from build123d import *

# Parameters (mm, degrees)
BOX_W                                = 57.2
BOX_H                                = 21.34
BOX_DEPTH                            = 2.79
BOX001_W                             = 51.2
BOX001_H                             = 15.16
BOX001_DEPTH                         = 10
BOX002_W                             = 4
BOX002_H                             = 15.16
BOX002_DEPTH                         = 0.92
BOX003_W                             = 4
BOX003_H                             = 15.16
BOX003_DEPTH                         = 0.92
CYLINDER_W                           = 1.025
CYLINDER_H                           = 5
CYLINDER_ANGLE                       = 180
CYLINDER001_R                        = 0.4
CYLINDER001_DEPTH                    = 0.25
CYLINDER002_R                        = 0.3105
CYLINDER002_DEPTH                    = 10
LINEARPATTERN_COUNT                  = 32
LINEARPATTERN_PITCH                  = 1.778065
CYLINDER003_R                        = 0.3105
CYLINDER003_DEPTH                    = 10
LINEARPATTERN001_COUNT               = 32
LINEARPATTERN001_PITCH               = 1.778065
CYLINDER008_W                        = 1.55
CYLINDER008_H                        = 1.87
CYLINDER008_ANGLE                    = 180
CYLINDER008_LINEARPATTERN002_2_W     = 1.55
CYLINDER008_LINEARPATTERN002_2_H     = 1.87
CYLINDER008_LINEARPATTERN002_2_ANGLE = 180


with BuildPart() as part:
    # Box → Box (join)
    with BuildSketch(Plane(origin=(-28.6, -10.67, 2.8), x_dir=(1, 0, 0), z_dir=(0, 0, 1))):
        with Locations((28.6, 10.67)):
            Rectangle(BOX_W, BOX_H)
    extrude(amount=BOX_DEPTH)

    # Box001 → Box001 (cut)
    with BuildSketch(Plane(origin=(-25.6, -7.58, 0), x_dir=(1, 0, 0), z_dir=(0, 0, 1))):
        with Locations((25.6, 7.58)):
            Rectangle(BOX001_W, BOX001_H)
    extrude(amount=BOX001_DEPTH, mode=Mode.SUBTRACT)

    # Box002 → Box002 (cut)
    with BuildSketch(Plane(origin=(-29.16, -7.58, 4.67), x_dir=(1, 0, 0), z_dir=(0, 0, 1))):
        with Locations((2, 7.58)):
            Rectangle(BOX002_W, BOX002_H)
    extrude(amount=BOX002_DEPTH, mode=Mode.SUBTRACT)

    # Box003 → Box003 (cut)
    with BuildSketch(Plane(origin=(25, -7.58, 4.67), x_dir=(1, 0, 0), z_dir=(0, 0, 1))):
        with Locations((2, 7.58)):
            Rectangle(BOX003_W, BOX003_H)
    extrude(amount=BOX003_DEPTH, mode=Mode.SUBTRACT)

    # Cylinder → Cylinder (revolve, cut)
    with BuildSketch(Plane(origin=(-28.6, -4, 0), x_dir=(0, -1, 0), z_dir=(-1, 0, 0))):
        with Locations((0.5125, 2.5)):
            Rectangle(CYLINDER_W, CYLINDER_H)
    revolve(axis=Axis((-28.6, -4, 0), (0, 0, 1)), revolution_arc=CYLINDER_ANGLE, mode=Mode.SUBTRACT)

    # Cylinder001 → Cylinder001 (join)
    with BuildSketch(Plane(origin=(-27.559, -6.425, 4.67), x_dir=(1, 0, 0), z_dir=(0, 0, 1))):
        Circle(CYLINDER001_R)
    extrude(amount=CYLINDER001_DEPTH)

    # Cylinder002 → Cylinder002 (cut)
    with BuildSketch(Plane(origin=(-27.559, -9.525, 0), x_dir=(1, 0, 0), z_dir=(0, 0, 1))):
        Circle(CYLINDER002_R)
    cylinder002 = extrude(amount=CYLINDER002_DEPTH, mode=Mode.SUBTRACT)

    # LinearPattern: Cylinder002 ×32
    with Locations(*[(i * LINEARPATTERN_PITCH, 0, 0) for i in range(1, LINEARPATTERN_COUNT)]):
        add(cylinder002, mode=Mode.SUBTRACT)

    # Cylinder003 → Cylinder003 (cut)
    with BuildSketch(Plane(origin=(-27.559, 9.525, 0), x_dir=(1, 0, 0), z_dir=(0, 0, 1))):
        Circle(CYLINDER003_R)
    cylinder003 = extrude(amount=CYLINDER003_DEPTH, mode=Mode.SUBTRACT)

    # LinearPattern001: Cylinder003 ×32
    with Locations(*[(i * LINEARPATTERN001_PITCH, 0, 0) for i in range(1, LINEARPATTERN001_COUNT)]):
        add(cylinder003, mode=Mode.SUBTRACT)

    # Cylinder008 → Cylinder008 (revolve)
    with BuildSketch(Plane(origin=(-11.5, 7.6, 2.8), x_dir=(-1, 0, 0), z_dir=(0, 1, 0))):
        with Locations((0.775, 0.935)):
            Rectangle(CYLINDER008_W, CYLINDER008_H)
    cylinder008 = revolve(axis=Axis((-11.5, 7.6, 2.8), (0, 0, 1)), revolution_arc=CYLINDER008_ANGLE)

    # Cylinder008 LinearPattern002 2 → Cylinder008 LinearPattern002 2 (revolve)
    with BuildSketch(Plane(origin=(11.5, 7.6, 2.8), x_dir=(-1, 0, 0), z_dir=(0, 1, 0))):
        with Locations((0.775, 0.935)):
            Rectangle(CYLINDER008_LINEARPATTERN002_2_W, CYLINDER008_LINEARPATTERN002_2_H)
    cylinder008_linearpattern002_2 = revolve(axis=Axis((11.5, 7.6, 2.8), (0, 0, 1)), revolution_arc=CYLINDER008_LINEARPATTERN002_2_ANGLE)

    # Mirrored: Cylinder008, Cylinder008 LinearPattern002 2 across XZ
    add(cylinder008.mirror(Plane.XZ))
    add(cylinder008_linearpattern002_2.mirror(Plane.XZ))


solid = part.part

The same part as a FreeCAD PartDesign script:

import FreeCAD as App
import Part
import Sketcher
Q = App.Units.Quantity

doc = App.newDocument("Part")
body = doc.addObject("PartDesign::Body", "Body")

sketch1 = doc.addObject("Sketcher::SketchObject", "Sketch")
body.addObject(sketch1)
sketch1.AttachmentSupport = (doc.XY_Plane, [""])
sketch1.MapMode = "FlatFace"
sketch1.AttachmentOffset = App.Placement(App.Vector(0, 0, 2.8), App.Rotation())
sketch1.addGeometry([
    Part.LineSegment(App.Vector(-28.6, 10.67, 0), App.Vector(-28.6, -10.67, 0)),
    Part.LineSegment(App.Vector(-28.6, -10.67, 0), App.Vector(28.6, -10.67, 0)),
    Part.LineSegment(App.Vector(28.6, -10.67, 0), App.Vector(28.6, 10.67, 0)),
    Part.LineSegment(App.Vector(28.6, 10.67, 0), App.Vector(-28.6, 10.67, 0)),
], False)
sketch1.addConstraint([
    Sketcher.Constraint("Coincident", 0, 2, 1, 1),
    Sketcher.Constraint("Coincident", 1, 2, 2, 1),
    Sketcher.Constraint("Coincident", 2, 2, 3, 1),
    Sketcher.Constraint("Coincident", 3, 2, 0, 1),
    Sketcher.Constraint("Vertical", 0),
    Sketcher.Constraint("Horizontal", 1),
    Sketcher.Constraint("Vertical", 2),
    Sketcher.Constraint("Horizontal", 3),
    Sketcher.Constraint("Symmetric", 0, 2, 2, 2, -1, 1),
    Sketcher.Constraint("DistanceX", 1, 1, 1, 2, Q("57.2 mm")),
    Sketcher.Constraint("DistanceY", 0, 2, 0, 1, Q("21.34 mm")),
])
pad1 = doc.addObject("PartDesign::Pad", "Pad")
body.addObject(pad1)
pad1.Profile = sketch1
pad1.Length = 2.79

sketch2 = doc.addObject("Sketcher::SketchObject", "Sketch001")
body.addObject(sketch2)
sketch2.AttachmentSupport = (doc.XY_Plane, [""])
sketch2.MapMode = "FlatFace"
sketch2.addGeometry([
    Part.LineSegment(App.Vector(-25.6, 7.58, 0), App.Vector(-25.6, -7.58, 0)),
    Part.LineSegment(App.Vector(-25.6, -7.58, 0), App.Vector(25.6, -7.58, 0)),
    Part.LineSegment(App.Vector(25.6, -7.58, 0), App.Vector(25.6, 7.58, 0)),
    Part.LineSegment(App.Vector(25.6, 7.58, 0), App.Vector(-25.6, 7.58, 0)),
], False)
sketch2.addConstraint([
    Sketcher.Constraint("Coincident", 0, 2, 1, 1),
    Sketcher.Constraint("Coincident", 1, 2, 2, 1),
    Sketcher.Constraint("Coincident", 2, 2, 3, 1),
    Sketcher.Constraint("Coincident", 3, 2, 0, 1),
    Sketcher.Constraint("Vertical", 0),
    Sketcher.Constraint("Horizontal", 1),
    Sketcher.Constraint("Vertical", 2),
    Sketcher.Constraint("Horizontal", 3),
    Sketcher.Constraint("Symmetric", 0, 2, 2, 2, -1, 1),
    Sketcher.Constraint("DistanceX", 1, 1, 1, 2, Q("51.2 mm")),
    Sketcher.Constraint("DistanceY", 0, 2, 0, 1, Q("15.16 mm")),
])
pocket1 = doc.addObject("PartDesign::Pocket", "Pocket")
body.addObject(pocket1)
pocket1.Profile = sketch2
pocket1.Length = 10
pocket1.Reversed = True

sketch3 = doc.addObject("Sketcher::SketchObject", "Sketch002")
body.addObject(sketch3)
sketch3.AttachmentSupport = (doc.XY_Plane, [""])
sketch3.MapMode = "FlatFace"
sketch3.AttachmentOffset = App.Placement(App.Vector(0, 0, 4.67), App.Rotation())
sketch3.addGeometry([
    Part.LineSegment(App.Vector(-29.16, 7.58, 0), App.Vector(-29.16, -7.58, 0)),
    Part.LineSegment(App.Vector(-29.16, -7.58, 0), App.Vector(-25.16, -7.58, 0)),
    Part.LineSegment(App.Vector(-25.16, -7.58, 0), App.Vector(-25.16, 7.58, 0)),
    Part.LineSegment(App.Vector(-25.16, 7.58, 0), App.Vector(-29.16, 7.58, 0)),
], False)
sketch3.addConstraint([
    Sketcher.Constraint("Coincident", 0, 2, 1, 1),
    Sketcher.Constraint("Coincident", 1, 2, 2, 1),
    Sketcher.Constraint("Coincident", 2, 2, 3, 1),
    Sketcher.Constraint("Coincident", 3, 2, 0, 1),
    Sketcher.Constraint("Vertical", 0),
    Sketcher.Constraint("Horizontal", 1),
    Sketcher.Constraint("Vertical", 2),
    Sketcher.Constraint("Horizontal", 3),
    Sketcher.Constraint("DistanceX", 1, 1, 1, 2, Q("4 mm")),
    Sketcher.Constraint("DistanceY", 0, 2, 0, 1, Q("15.16 mm")),
    Sketcher.Constraint("DistanceX", 0, 2, -1, 1, Q("29.16 mm")),
    Sketcher.Constraint("DistanceY", 0, 2, -1, 1, Q("7.58 mm")),
])
pocket2 = doc.addObject("PartDesign::Pocket", "Pocket001")
body.addObject(pocket2)
pocket2.Profile = sketch3
pocket2.Length = 0.92
pocket2.Reversed = True

sketch4 = doc.addObject("Sketcher::SketchObject", "Sketch003")
body.addObject(sketch4)
sketch4.AttachmentSupport = (doc.XY_Plane, [""])
sketch4.MapMode = "FlatFace"
sketch4.AttachmentOffset = App.Placement(App.Vector(0, 0, 4.67), App.Rotation())
sketch4.addGeometry([
    Part.LineSegment(App.Vector(25, 7.58, 0), App.Vector(25, -7.58, 0)),
    Part.LineSegment(App.Vector(25, -7.58, 0), App.Vector(29, -7.58, 0)),
    Part.LineSegment(App.Vector(29, -7.58, 0), App.Vector(29, 7.58, 0)),
    Part.LineSegment(App.Vector(29, 7.58, 0), App.Vector(25, 7.58, 0)),
], False)
sketch4.addConstraint([
    Sketcher.Constraint("Coincident", 0, 2, 1, 1),
    Sketcher.Constraint("Coincident", 1, 2, 2, 1),
    Sketcher.Constraint("Coincident", 2, 2, 3, 1),
    Sketcher.Constraint("Coincident", 3, 2, 0, 1),
    Sketcher.Constraint("Vertical", 0),
    Sketcher.Constraint("Horizontal", 1),
    Sketcher.Constraint("Vertical", 2),
    Sketcher.Constraint("Horizontal", 3),
    Sketcher.Constraint("DistanceX", 1, 1, 1, 2, Q("4 mm")),
    Sketcher.Constraint("DistanceX", -1, 1, 0, 2, Q("25 mm")),
    Sketcher.Constraint("DistanceY", 0, 2, 0, 1, Q("15.16 mm")),
    Sketcher.Constraint("DistanceY", 0, 2, -1, 1, Q("7.58 mm")),
])
pocket3 = doc.addObject("PartDesign::Pocket", "Pocket002")
body.addObject(pocket3)
pocket3.Profile = sketch4
pocket3.Length = 0.92
pocket3.Reversed = True

sketch5 = doc.addObject("Sketcher::SketchObject", "Sketch004")
body.addObject(sketch5)
sketch5.AttachmentSupport = (doc.YZ_Plane, [""])
sketch5.MapMode = "FlatFace"
sketch5.AttachmentOffset = App.Placement(App.Vector(0, 0, -28.6), App.Rotation())
sketch5.addGeometry([
    Part.LineSegment(App.Vector(-4, 5, 0), App.Vector(-4, 0, 0)),
    Part.LineSegment(App.Vector(-4, 0, 0), App.Vector(-5.025, 0, 0)),
    Part.LineSegment(App.Vector(-5.025, 0, 0), App.Vector(-5.025, 5, 0)),
    Part.LineSegment(App.Vector(-5.025, 5, 0), App.Vector(-4, 5, 0)),
], False)
sketch5.addGeometry(Part.LineSegment(App.Vector(-4, 0, 0), App.Vector(-4, 5, 0)), True)
sketch5.addConstraint([
    Sketcher.Constraint("Coincident", 0, 2, 1, 1),
    Sketcher.Constraint("Coincident", 1, 2, 2, 1),
    Sketcher.Constraint("Coincident", 2, 2, 3, 1),
    Sketcher.Constraint("Coincident", 3, 2, 0, 1),
    Sketcher.Constraint("Vertical", 0),
    Sketcher.Constraint("Horizontal", 1),
    Sketcher.Constraint("Vertical", 2),
    Sketcher.Constraint("Horizontal", 3),
    Sketcher.Constraint("Vertical", 4),
    Sketcher.Constraint("Coincident", 4, 1, 0, 2),
    Sketcher.Constraint("PointOnObject", 0, 2, -1),
    Sketcher.Constraint("Horizontal", 2, 2, 4, 2),
    Sketcher.Constraint("DistanceY", 0, 2, 0, 1, Q("5 mm")),
    Sketcher.Constraint("DistanceX", 0, 2, -1, 1, Q("4 mm")),
    Sketcher.Constraint("DistanceX", 1, 2, 1, 1, Q("1.025 mm")),
])
groove = doc.addObject("PartDesign::Groove", "Groove")
body.addObject(groove)
groove.Profile = sketch5
groove.ReferenceAxis = (sketch5, ["Axis0"])
groove.Angle = 180

sketch6 = doc.addObject("Sketcher::SketchObject", "Sketch005")
body.addObject(sketch6)
sketch6.AttachmentSupport = (doc.XY_Plane, [""])
sketch6.MapMode = "FlatFace"
sketch6.AttachmentOffset = App.Placement(App.Vector(0, 0, 4.67), App.Rotation())
sketch6.addGeometry(Part.Circle(App.Vector(-27.559, -6.425, 0), App.Vector(0, 0, 1), 0.4), False)
sketch6.addConstraint([
    Sketcher.Constraint("Diameter", 0, Q("0.8 mm")),
    Sketcher.Constraint("DistanceX", 0, 3, -1, 1, Q("27.559 mm")),
    Sketcher.Constraint("DistanceY", 0, 3, -1, 1, Q("6.425 mm")),
])
pad2 = doc.addObject("PartDesign::Pad", "Pad001")
body.addObject(pad2)
pad2.Profile = sketch6
pad2.Length = 0.25

sketch7 = doc.addObject("Sketcher::SketchObject", "Sketch006")
body.addObject(sketch7)
sketch7.AttachmentSupport = (doc.XY_Plane, [""])
sketch7.MapMode = "FlatFace"
sketch7.addGeometry(Part.Circle(App.Vector(-27.559, -9.525, 0), App.Vector(0, 0, 1), 0.3105), False)
sketch7.addConstraint([
    Sketcher.Constraint("Diameter", 0, Q("0.621 mm")),
    Sketcher.Constraint("DistanceX", 0, 3, -1, 1, Q("27.559 mm")),
    Sketcher.Constraint("DistanceY", 0, 3, -1, 1, Q("9.525 mm")),
])
pocket4 = doc.addObject("PartDesign::Pocket", "Pocket003")
body.addObject(pocket4)
pocket4.Profile = sketch7
pocket4.Length = 10
pocket4.Reversed = True
doc.recompute()

linearpattern = doc.addObject("PartDesign::LinearPattern", "LinearPattern")
body.addObject(linearpattern)
linearpattern.Originals = [pocket4]
linearpattern.Direction = (doc.X_Axis, [""])
linearpattern.Mode = "offset"
linearpattern.Offset = 1.778065
linearpattern.Occurrences = 32
body.Tip = linearpattern

sketch8 = doc.addObject("Sketcher::SketchObject", "Sketch007")
body.addObject(sketch8)
sketch8.AttachmentSupport = (doc.XY_Plane, [""])
sketch8.MapMode = "FlatFace"
sketch8.addGeometry(Part.Circle(App.Vector(-27.559, 9.525, 0), App.Vector(0, 0, 1), 0.3105), False)
sketch8.addConstraint([
    Sketcher.Constraint("Diameter", 0, Q("0.621 mm")),
    Sketcher.Constraint("DistanceX", 0, 3, -1, 1, Q("27.559 mm")),
    Sketcher.Constraint("DistanceY", -1, 1, 0, 3, Q("9.525 mm")),
])
pocket5 = doc.addObject("PartDesign::Pocket", "Pocket004")
body.addObject(pocket5)
pocket5.Profile = sketch8
pocket5.Length = 10
pocket5.Reversed = True
doc.recompute()

linearpattern2 = doc.addObject("PartDesign::LinearPattern", "LinearPattern001")
body.addObject(linearpattern2)
linearpattern2.Originals = [pocket5]
linearpattern2.Direction = (doc.X_Axis, [""])
linearpattern2.Mode = "offset"
linearpattern2.Offset = 1.778065
linearpattern2.Occurrences = 32
body.Tip = linearpattern2

sketch9 = doc.addObject("Sketcher::SketchObject", "Sketch008")
body.addObject(sketch9)
sketch9.AttachmentSupport = (doc.XZ_Plane, [""])
sketch9.MapMode = "FlatFace"
sketch9.AttachmentOffset = App.Placement(App.Vector(0, 0, -7.6), App.Rotation())
sketch9.addGeometry([
    Part.LineSegment(App.Vector(-11.5, 4.67, 0), App.Vector(-11.5, 2.8, 0)),
    Part.LineSegment(App.Vector(-11.5, 2.8, 0), App.Vector(-13.05, 2.8, 0)),
    Part.LineSegment(App.Vector(-13.05, 2.8, 0), App.Vector(-13.05, 4.67, 0)),
    Part.LineSegment(App.Vector(-13.05, 4.67, 0), App.Vector(-11.5, 4.67, 0)),
], False)
sketch9.addGeometry(Part.LineSegment(App.Vector(-11.5, 2.8, 0), App.Vector(-11.5, 4.67, 0)), True)
sketch9.addConstraint([
    Sketcher.Constraint("Coincident", 0, 2, 1, 1),
    Sketcher.Constraint("Coincident", 1, 2, 2, 1),
    Sketcher.Constraint("Coincident", 2, 2, 3, 1),
    Sketcher.Constraint("Coincident", 3, 2, 0, 1),
    Sketcher.Constraint("Vertical", 0),
    Sketcher.Constraint("Horizontal", 1),
    Sketcher.Constraint("Vertical", 2),
    Sketcher.Constraint("Horizontal", 3),
    Sketcher.Constraint("Vertical", 4),
    Sketcher.Constraint("Coincident", 4, 1, 0, 2),
    Sketcher.Constraint("Horizontal", 2, 2, 4, 2),
    Sketcher.Constraint("DistanceX", 1, 2, 1, 1, Q("1.55 mm")),
    Sketcher.Constraint("DistanceY", 0, 2, 0, 1, Q("1.87 mm")),
    Sketcher.Constraint("DistanceX", 0, 2, -1, 1, Q("11.5 mm")),
    Sketcher.Constraint("DistanceY", -1, 1, 0, 2, Q("2.8 mm")),
])
revolution = doc.addObject("PartDesign::Revolution", "Revolution")
body.addObject(revolution)
revolution.Profile = sketch9
revolution.ReferenceAxis = (sketch9, ["Axis0"])
revolution.Angle = 180

sketch10 = doc.addObject("Sketcher::SketchObject", "Sketch009")
body.addObject(sketch10)
sketch10.AttachmentSupport = (doc.XZ_Plane, [""])
sketch10.MapMode = "FlatFace"
sketch10.AttachmentOffset = App.Placement(App.Vector(0, 0, -7.6), App.Rotation())
sketch10.addGeometry([
    Part.LineSegment(App.Vector(11.5, 4.67, 0), App.Vector(11.5, 2.8, 0)),
    Part.LineSegment(App.Vector(11.5, 2.8, 0), App.Vector(9.95, 2.8, 0)),
    Part.LineSegment(App.Vector(9.95, 2.8, 0), App.Vector(9.95, 4.67, 0)),
    Part.LineSegment(App.Vector(9.95, 4.67, 0), App.Vector(11.5, 4.67, 0)),
], False)
sketch10.addGeometry(Part.LineSegment(App.Vector(11.5, 2.8, 0), App.Vector(11.5, 4.67, 0)), True)
sketch10.addConstraint([
    Sketcher.Constraint("Coincident", 0, 2, 1, 1),
    Sketcher.Constraint("Coincident", 1, 2, 2, 1),
    Sketcher.Constraint("Coincident", 2, 2, 3, 1),
    Sketcher.Constraint("Coincident", 3, 2, 0, 1),
    Sketcher.Constraint("Vertical", 0),
    Sketcher.Constraint("Horizontal", 1),
    Sketcher.Constraint("Vertical", 2),
    Sketcher.Constraint("Horizontal", 3),
    Sketcher.Constraint("Vertical", 4),
    Sketcher.Constraint("Coincident", 4, 1, 0, 2),
    Sketcher.Constraint("Horizontal", 2, 2, 4, 2),
    Sketcher.Constraint("DistanceX", 1, 2, 1, 1, Q("1.55 mm")),
    Sketcher.Constraint("DistanceY", 0, 2, 0, 1, Q("1.87 mm")),
    Sketcher.Constraint("DistanceX", -1, 1, 0, 2, Q("11.5 mm")),
    Sketcher.Constraint("DistanceY", -1, 1, 0, 2, Q("2.8 mm")),
])
revolution2 = doc.addObject("PartDesign::Revolution", "Revolution001")
body.addObject(revolution2)
revolution2.Profile = sketch10
revolution2.ReferenceAxis = (sketch10, ["Axis0"])
revolution2.Angle = 180
doc.recompute()

mirrored = doc.addObject("PartDesign::Mirrored", "Mirrored")
body.addObject(mirrored)
mirrored.Originals = [revolution, revolution2]
mirrored.MirrorPlane = (doc.XZ_Plane, [""])
body.Tip = mirrored

doc.recompute()
